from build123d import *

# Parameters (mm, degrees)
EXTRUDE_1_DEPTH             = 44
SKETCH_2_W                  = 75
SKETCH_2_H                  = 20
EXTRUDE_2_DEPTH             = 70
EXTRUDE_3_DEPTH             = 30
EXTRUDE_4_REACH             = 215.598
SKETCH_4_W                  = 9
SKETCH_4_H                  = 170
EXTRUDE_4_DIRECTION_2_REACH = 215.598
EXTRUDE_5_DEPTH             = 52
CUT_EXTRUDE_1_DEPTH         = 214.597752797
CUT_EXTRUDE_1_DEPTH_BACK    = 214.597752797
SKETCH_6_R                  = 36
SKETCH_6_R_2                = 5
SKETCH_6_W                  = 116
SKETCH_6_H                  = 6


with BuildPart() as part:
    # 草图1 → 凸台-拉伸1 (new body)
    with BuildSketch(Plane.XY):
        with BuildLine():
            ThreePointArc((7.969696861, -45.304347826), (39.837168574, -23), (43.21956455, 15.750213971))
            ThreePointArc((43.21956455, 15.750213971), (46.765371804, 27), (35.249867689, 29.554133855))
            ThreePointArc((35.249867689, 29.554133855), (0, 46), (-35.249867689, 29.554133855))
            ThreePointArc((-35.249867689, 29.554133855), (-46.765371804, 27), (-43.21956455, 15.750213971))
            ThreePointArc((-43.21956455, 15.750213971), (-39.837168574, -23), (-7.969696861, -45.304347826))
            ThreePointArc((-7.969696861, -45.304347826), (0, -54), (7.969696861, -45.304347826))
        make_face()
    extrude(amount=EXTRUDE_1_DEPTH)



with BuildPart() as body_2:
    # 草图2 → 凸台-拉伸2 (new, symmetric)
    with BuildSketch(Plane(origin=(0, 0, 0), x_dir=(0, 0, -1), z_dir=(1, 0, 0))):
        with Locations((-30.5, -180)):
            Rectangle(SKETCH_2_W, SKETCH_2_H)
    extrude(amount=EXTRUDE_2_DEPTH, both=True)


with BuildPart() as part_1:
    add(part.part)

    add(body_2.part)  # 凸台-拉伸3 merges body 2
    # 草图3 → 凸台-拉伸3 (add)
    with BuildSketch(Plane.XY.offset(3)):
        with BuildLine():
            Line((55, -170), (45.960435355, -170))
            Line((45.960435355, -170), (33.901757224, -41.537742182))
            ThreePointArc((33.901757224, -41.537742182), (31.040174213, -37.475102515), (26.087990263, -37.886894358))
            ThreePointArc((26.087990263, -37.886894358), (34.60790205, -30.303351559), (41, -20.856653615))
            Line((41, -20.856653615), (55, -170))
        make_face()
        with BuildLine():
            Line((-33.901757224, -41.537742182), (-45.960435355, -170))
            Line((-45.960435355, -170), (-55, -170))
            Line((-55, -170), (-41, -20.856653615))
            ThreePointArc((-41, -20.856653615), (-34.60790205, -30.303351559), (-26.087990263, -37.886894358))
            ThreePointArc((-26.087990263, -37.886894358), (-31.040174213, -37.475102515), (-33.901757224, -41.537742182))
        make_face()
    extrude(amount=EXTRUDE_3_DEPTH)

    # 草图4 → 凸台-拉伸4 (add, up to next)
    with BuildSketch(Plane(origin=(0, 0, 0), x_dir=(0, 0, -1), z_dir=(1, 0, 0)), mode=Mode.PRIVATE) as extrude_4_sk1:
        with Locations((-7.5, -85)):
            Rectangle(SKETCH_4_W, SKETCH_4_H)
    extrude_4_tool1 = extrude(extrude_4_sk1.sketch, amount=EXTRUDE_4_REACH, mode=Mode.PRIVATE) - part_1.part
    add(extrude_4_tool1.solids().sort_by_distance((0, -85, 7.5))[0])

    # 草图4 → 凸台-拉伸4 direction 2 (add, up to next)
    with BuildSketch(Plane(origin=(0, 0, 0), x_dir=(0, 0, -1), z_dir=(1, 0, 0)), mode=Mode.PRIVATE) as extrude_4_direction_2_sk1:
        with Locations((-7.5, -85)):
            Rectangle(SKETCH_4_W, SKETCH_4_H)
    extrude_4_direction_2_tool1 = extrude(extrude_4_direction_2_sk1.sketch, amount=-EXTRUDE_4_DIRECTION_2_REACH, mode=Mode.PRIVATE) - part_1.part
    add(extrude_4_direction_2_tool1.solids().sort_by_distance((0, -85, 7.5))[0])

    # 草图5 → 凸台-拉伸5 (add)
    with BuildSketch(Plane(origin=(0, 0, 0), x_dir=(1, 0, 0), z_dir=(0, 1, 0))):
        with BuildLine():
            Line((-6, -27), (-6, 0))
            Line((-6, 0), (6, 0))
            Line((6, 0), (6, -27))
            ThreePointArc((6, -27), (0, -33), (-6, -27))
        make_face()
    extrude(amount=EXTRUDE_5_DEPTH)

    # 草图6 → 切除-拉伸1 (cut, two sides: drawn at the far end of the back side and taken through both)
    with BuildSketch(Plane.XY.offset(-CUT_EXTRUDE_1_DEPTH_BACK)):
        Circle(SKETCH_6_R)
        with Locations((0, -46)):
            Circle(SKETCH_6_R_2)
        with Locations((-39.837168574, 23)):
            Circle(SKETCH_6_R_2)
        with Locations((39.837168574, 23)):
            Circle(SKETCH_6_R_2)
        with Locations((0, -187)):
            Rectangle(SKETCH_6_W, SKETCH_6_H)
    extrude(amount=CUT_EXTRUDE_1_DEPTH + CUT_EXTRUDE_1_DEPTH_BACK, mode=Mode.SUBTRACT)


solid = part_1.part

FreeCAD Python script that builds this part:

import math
import FreeCAD as App
import Part
import Sketcher
from FreeCAD import Vector


def add_polygon(sketch, points):
    """Adds a closed chain of lines whose ends are joined by coincident constraints."""
    first, n = sketch.GeometryCount, len(points)
    for a, b in zip(points, points[1:] + points[:1]):
        sketch.addGeometry(Part.LineSegment(App.Vector(*a, 0), App.Vector(*b, 0)), False)
    for i in range(n):
        sketch.addConstraint(Sketcher.Constraint("Coincident", first + i, 2, first + (i + 1) % n, 1))

doc = App.newDocument("Part")
body = doc.addObject("PartDesign::Body", "Body")

sketch1 = doc.addObject("Sketcher::SketchObject", "Sketch")
body.addObject(sketch1)
sketch1.AttachmentSupport = (doc.XY_Plane, [""])
sketch1.MapMode = "FlatFace"
sketch1.addGeometry([
    Part.ArcOfCircle(Part.Circle(Vector(0, 0, 0), Vector(0, 0, 1), 46), math.radians(-80), math.radians(20)),
    Part.ArcOfCircle(Part.Circle(Vector(40, 23, 0), Vector(0, 0, 1), 8), math.radians(-65), math.radians(125)),
    Part.ArcOfCircle(Part.Circle(Vector(0, 0, 0), Vector(0, 0, 1), 46), math.radians(40), math.radians(140)),
    Part.ArcOfCircle(Part.Circle(Vector(-40, 23, 0), Vector(0, 0, 1), 8), math.radians(55), math.radians(245)),
    Part.ArcOfCircle(Part.Circle(Vector(0, 0, 0), Vector(0, 0, 1), 46), math.radians(160), math.radians(260)),
    Part.ArcOfCircle(Part.Circle(Vector(0, -46, 0), Vector(0, 0, 1), 8), math.radians(175), math.radians(365)),
], False)
sketch1.addConstraint([
    Sketcher.Constraint("Coincident", 0, 2, 1, 1),
    Sketcher.Constraint("Coincident", 1, 2, 2, 1),
    Sketcher.Constraint("Coincident", 2, 2, 3, 1),
    Sketcher.Constraint("Coincident", 3, 2, 4, 1),
    Sketcher.Constraint("Coincident", 4, 2, 5, 1),
    Sketcher.Constraint("Coincident", 5, 2, 0, 1),
    Sketcher.Constraint("Coincident", 0, 3, -1, 1),
    Sketcher.Constraint("Coincident", 2, 3, -1, 1),
    Sketcher.Constraint("Coincident", 4, 3, -1, 1),
    Sketcher.Constraint("Equal", 0, 2),
    Sketcher.Constraint("Equal", 1, 3),
    Sketcher.Constraint("Equal", 2, 4),
    Sketcher.Constraint("Equal", 3, 5),
    Sketcher.Constraint("Symmetric", 1, 3, 3, 3, -2),
    Sketcher.Constraint("PointOnObject", 5, 3, -2),
    Sketcher.Constraint("Radius", 0, 46.0),
    Sketcher.Constraint("Radius", 1, 8.0),
    Sketcher.Constraint("DistanceY", -1, 1, 1, 3, 23.0),
    Sketcher.Constraint("DistanceY", 5, 3, -1, 1, 46.0),
    Sketcher.Constraint("DistanceX", 1, 2, 1, 3, 4.587301),
])
pad1 = doc.addObject("PartDesign::Pad", "Pad")
body.addObject(pad1)
pad1.Profile = sketch1
pad1.Length = 44
body2 = doc.addObject("PartDesign::Body", "Body001")

sketch2 = doc.addObject("Sketcher::SketchObject", "Sketch001")
body2.addObject(sketch2)
sketch2.AttachmentSupport = (doc.getObject("YZ_Plane001"), [""])
sketch2.MapMode = "FlatFace"
add_polygon(sketch2, [(-170, 68), (-190, 68), (-190, -7), (-170, -7)])
sketch2.addConstraint([
    Sketcher.Constraint("Horizontal", 0),
    Sketcher.Constraint("Vertical", 1),
    Sketcher.Constraint("Horizontal", 2),
    Sketcher.Constraint("Vertical", 3),
    Sketcher.Constraint("DistanceX", 0, 2, 0, 1, 20.0),
    Sketcher.Constraint("DistanceY", 1, 2, 1, 1, 75.0),
    Sketcher.Constraint("DistanceX", 0, 2, -1, 1, 190.0),
    Sketcher.Constraint("DistanceY", -1, 1, 0, 2, 68.0),
])
pad2 = doc.addObject("PartDesign::Pad", "Pad001")
body2.addObject(pad2)
pad2.Profile = sketch2
pad2.Length = 140
pad2.Midplane = True
body.AllowCompound = True
doc.recompute()

boolean = doc.addObject("PartDesign::Boolean", "Boolean")
body.addObject(boolean)
boolean.Type = "Fuse"
boolean.addObjects([body2])

sketch3 = doc.addObject("Sketcher::SketchObject", "Sketch002")
body.addObject(sketch3)
sketch3.AttachmentSupport = (doc.XY_Plane, [""])
sketch3.MapMode = "FlatFace"
sketch3.AttachmentOffset = App.Placement(Vector(0, 0, 3), App.Rotation())
sketch3.addGeometry([
    Part.LineSegment(Vector(46, -170, 0), Vector(55, -170, 0)),
    Part.LineSegment(Vector(55, -170, 0), Vector(41, -20.9, 0)),
    Part.ArcOfCircle(Part.Circle(Vector(0, 0, 0), Vector(0, 0, 1), 46), math.radians(-55), math.radians(-27)),
    Part.ArcOfCircle(Part.Circle(Vector(28.9, -42, 0), Vector(0, 0, 1), 5), math.radians(5), math.radians(125)),
    Part.LineSegment(Vector(33.9, -41.5, 0), Vector(46, -170, 0)),
    Part.LineSegment(Vector(-46, -170, 0), Vector(-33.9, -41.5, 0)),
    Part.ArcOfCircle(Part.Circle(Vector(-28.9, -42, 0), Vector(0, 0, 1), 5), math.radians(55), math.radians(175)),
    Part.ArcOfCircle(Part.Circle(Vector(0, 0, 0), Vector(0, 0, 1), 46), math.radians(-153), math.radians(-125)),
    Part.LineSegment(Vector(-41, -20.9, 0), Vector(-55, -170, 0)),
    Part.LineSegment(Vector(-55, -170, 0), Vector(-46, -170, 0)),
], False)
sketch3.addConstraint([
    Sketcher.Constraint("Coincident", 0, 2, 1, 1),
    Sketcher.Constraint("Coincident", 1, 2, 2, 2),
    Sketcher.Constraint("Tangent", 2, 1, 3, 2),
    Sketcher.Constraint("Tangent", 3, 1, 4, 1),
    Sketcher.Constraint("Coincident", 4, 2, 0, 1),
    Sketcher.Constraint("Tangent", 5, 2, 6, 2),
    Sketcher.Constraint("Tangent", 6, 1, 7, 2),
    Sketcher.Constraint("Coincident", 7, 1, 8, 1),
    Sketcher.Constraint("Coincident", 8, 2, 9, 1),
    Sketcher.Constraint("Coincident", 9, 2, 5, 1),
    Sketcher.Constraint("Horizontal", 0),
    Sketcher.Constraint("Horizontal", 9),
    Sketcher.Constraint("Coincident", 2, 3, -1, 1),
    Sketcher.Constraint("Coincident", 7, 3, -1, 1),
    Sketcher.Constraint("Equal", 3, 6),
    Sketcher.Constraint("Equal", 2, 7),
    Sketcher.Constraint("Symmetric", 3, 1, 5, 2, -2),
    Sketcher.Constraint("Symmetric", 0, 2, 8, 2, -2),
    Sketcher.Constraint("Parallel", 1, 4),
    Sketcher.Constraint("Parallel", 5, 8),
    Sketcher.Constraint("Radius", 2, 46.0),
    Sketcher.Constraint("Radius", 3, 5.0),
    Sketcher.Constraint("DistanceX", -1, 1, 0, 2, 55.0),
    Sketcher.Constraint("DistanceY", 0, 2, -1, 1, 170.0),
    Sketcher.Constraint("DistanceX", -1, 1, 1, 2, 41.0),
    Sketcher.Constraint("DistanceX", 5, 2, 3, 3, 62.825399),
])
pad3 = doc.addObject("PartDesign::Pad", "Pad002")
body.addObject(pad3)
pad3.Profile = sketch3
pad3.Length = 30

sketch4 = doc.addObject("Sketcher::SketchObject", "Sketch003")
body.addObject(sketch4)
sketch4.AttachmentSupport = (doc.YZ_Plane, [""])
sketch4.MapMode = "FlatFace"
add_polygon(sketch4, [(0, 12), (-170, 12), (-170, 3), (0, 3)])
sketch4.addConstraint([
    Sketcher.Constraint("Horizontal", 0),
    Sketcher.Constraint("Vertical", 1),
    Sketcher.Constraint("Horizontal", 2),
    Sketcher.Constraint("Vertical", 3),
    Sketcher.Constraint("PointOnObject", 2, 2, -2),
    Sketcher.Constraint("DistanceX", 0, 2, 0, 1, 170.0),
    Sketcher.Constraint("DistanceY", 1, 2, 1, 1, 9.0),
    Sketcher.Constraint("DistanceY", -1, 1, 0, 2, 12.0),
])
pad4 = doc.addObject("PartDesign::Pad", "Pad003")
body.addObject(pad4)
pad4.Profile = sketch4
pad4.Type = "UpToFirst"

sketch5 = doc.addObject("Sketcher::SketchObject", "Sketch004")
body.addObject(sketch5)
sketch5.AttachmentSupport = (doc.YZ_Plane, [""])
sketch5.MapMode = "FlatFace"
add_polygon(sketch5, [(0, 12), (-170, 12), (-170, 3), (0, 3)])
sketch5.addConstraint([
    Sketcher.Constraint("Horizontal", 0),
    Sketcher.Constraint("Vertical", 1),
    Sketcher.Constraint("Horizontal", 2),
    Sketcher.Constraint("Vertical", 3),
    Sketcher.Constraint("PointOnObject", 2, 2, -2),
    Sketcher.Constraint("DistanceX", 0, 2, 0, 1, 170.0),
    Sketcher.Constraint("DistanceY", 1, 2, 1, 1, 9.0),
    Sketcher.Constraint("DistanceY", -1, 1, 0, 2, 12.0),
])
pad5 = doc.addObject("PartDesign::Pad", "Pad004")
body.addObject(pad5)
pad5.Profile = sketch5
pad5.Type = "UpToFirst"
pad5.Reversed = True

sketch6 = doc.addObject("Sketcher::SketchObject", "Sketch005")
body.addObject(sketch6)
sketch6.AttachmentSupport = (doc.XZ_Plane, [""])
sketch6.MapMode = "FlatFace"
sketch6.addGeometry([
    Part.LineSegment(Vector(-6, 0, 0), Vector(-6, 27, 0)),
    Part.ArcOfCircle(Part.Circle(Vector(0, 27, 0), Vector(0, 0, 1), 6), math.radians(0), math.radians(180)),
    Part.LineSegment(Vector(6, 27, 0), Vector(6, 0, 0)),
    Part.LineSegment(Vector(6, 0, 0), Vector(-6, 0, 0)),
], False)
sketch6.addConstraint([
    Sketcher.Constraint("Tangent", 0, 2, 1, 2),
    Sketcher.Constraint("Tangent", 1, 1, 2, 1),
    Sketcher.Constraint("Coincident", 2, 2, 3, 1),
    Sketcher.Constraint("Coincident", 3, 2, 0, 1),
    Sketcher.Constraint("Vertical", 0),
    Sketcher.Constraint("Vertical", 2),
    Sketcher.Constraint("Horizontal", 3),
    Sketcher.Constraint("Symmetric", 2, 2, 3, 2, -1, 1),
    Sketcher.Constraint("Radius", 1, 6.0),
    Sketcher.Constraint("DistanceY", 0, 1, 0, 2, 27.0),
])
pad6 = doc.addObject("PartDesign::Pad", "Pad005")
body.addObject(pad6)
pad6.Profile = sketch6
pad6.Length = 52
pad6.Reversed = True

sketch7 = doc.addObject("Sketcher::SketchObject", "Sketch006")
body.addObject(sketch7)
sketch7.AttachmentSupport = (doc.XY_Plane, [""])
sketch7.MapMode = "FlatFace"
sketch7.addGeometry(Part.Circle(Vector(0, 0, 0), Vector(0, 0, 1), 36), False)
sketch7.addGeometry(Part.Circle(Vector(0, -46, 0), Vector(0, 0, 1), 5), False)
sketch7.addGeometry(Part.Circle(Vector(-40, 23, 0), Vector(0, 0, 1), 5), False)
sketch7.addGeometry(Part.Circle(Vector(40, 23, 0), Vector(0, 0, 1), 5), False)
add_polygon(sketch7, [(-58, -184), (-58, -190), (58, -190), (58, -184)])
sketch7.addConstraint([
    Sketcher.Constraint("Vertical", 4),
    Sketcher.Constraint("Horizontal", 5),
    Sketcher.Constraint("Vertical", 6),
    Sketcher.Constraint("Horizontal", 7),
    Sketcher.Constraint("Coincident", 0, 3, -1, 1),
    Sketcher.Constraint("Equal", 1, 2),
    Sketcher.Constraint("Equal", 2, 3),
    Sketcher.Constraint("Symmetric", 2, 3, 3, 3, -2),
    Sketcher.Constraint("PointOnObject", 1, 3, -2),
    Sketcher.Constraint("Diameter", 0, 72.0),
    Sketcher.Constraint("Diameter", 1, 10.0),
    Sketcher.Constraint("DistanceX", 5, 1, 5, 2, 116.0),
    Sketcher.Constraint("DistanceY", 4, 2, 4, 1, 6.0),
    Sketcher.Constraint("DistanceY", 1, 3, -1, 1, 46.0),
    Sketcher.Constraint("DistanceY", -1, 1, 2, 3, 23.0),
    Sketcher.Constraint("DistanceX", 4, 2, -1, 1, 58.0),
    Sketcher.Constraint("DistanceY", 4, 2, -1, 1, 190.0),
    Sketcher.Constraint("DistanceX", 2, 3, -1, 1, 39.837169),
])
pocket1 = doc.addObject("PartDesign::Pocket", "Pocket")
body.addObject(pocket1)
pocket1.Profile = sketch7
pocket1.Type = "ThroughAll"
pocket1.Midplane = True

doc.recompute()
